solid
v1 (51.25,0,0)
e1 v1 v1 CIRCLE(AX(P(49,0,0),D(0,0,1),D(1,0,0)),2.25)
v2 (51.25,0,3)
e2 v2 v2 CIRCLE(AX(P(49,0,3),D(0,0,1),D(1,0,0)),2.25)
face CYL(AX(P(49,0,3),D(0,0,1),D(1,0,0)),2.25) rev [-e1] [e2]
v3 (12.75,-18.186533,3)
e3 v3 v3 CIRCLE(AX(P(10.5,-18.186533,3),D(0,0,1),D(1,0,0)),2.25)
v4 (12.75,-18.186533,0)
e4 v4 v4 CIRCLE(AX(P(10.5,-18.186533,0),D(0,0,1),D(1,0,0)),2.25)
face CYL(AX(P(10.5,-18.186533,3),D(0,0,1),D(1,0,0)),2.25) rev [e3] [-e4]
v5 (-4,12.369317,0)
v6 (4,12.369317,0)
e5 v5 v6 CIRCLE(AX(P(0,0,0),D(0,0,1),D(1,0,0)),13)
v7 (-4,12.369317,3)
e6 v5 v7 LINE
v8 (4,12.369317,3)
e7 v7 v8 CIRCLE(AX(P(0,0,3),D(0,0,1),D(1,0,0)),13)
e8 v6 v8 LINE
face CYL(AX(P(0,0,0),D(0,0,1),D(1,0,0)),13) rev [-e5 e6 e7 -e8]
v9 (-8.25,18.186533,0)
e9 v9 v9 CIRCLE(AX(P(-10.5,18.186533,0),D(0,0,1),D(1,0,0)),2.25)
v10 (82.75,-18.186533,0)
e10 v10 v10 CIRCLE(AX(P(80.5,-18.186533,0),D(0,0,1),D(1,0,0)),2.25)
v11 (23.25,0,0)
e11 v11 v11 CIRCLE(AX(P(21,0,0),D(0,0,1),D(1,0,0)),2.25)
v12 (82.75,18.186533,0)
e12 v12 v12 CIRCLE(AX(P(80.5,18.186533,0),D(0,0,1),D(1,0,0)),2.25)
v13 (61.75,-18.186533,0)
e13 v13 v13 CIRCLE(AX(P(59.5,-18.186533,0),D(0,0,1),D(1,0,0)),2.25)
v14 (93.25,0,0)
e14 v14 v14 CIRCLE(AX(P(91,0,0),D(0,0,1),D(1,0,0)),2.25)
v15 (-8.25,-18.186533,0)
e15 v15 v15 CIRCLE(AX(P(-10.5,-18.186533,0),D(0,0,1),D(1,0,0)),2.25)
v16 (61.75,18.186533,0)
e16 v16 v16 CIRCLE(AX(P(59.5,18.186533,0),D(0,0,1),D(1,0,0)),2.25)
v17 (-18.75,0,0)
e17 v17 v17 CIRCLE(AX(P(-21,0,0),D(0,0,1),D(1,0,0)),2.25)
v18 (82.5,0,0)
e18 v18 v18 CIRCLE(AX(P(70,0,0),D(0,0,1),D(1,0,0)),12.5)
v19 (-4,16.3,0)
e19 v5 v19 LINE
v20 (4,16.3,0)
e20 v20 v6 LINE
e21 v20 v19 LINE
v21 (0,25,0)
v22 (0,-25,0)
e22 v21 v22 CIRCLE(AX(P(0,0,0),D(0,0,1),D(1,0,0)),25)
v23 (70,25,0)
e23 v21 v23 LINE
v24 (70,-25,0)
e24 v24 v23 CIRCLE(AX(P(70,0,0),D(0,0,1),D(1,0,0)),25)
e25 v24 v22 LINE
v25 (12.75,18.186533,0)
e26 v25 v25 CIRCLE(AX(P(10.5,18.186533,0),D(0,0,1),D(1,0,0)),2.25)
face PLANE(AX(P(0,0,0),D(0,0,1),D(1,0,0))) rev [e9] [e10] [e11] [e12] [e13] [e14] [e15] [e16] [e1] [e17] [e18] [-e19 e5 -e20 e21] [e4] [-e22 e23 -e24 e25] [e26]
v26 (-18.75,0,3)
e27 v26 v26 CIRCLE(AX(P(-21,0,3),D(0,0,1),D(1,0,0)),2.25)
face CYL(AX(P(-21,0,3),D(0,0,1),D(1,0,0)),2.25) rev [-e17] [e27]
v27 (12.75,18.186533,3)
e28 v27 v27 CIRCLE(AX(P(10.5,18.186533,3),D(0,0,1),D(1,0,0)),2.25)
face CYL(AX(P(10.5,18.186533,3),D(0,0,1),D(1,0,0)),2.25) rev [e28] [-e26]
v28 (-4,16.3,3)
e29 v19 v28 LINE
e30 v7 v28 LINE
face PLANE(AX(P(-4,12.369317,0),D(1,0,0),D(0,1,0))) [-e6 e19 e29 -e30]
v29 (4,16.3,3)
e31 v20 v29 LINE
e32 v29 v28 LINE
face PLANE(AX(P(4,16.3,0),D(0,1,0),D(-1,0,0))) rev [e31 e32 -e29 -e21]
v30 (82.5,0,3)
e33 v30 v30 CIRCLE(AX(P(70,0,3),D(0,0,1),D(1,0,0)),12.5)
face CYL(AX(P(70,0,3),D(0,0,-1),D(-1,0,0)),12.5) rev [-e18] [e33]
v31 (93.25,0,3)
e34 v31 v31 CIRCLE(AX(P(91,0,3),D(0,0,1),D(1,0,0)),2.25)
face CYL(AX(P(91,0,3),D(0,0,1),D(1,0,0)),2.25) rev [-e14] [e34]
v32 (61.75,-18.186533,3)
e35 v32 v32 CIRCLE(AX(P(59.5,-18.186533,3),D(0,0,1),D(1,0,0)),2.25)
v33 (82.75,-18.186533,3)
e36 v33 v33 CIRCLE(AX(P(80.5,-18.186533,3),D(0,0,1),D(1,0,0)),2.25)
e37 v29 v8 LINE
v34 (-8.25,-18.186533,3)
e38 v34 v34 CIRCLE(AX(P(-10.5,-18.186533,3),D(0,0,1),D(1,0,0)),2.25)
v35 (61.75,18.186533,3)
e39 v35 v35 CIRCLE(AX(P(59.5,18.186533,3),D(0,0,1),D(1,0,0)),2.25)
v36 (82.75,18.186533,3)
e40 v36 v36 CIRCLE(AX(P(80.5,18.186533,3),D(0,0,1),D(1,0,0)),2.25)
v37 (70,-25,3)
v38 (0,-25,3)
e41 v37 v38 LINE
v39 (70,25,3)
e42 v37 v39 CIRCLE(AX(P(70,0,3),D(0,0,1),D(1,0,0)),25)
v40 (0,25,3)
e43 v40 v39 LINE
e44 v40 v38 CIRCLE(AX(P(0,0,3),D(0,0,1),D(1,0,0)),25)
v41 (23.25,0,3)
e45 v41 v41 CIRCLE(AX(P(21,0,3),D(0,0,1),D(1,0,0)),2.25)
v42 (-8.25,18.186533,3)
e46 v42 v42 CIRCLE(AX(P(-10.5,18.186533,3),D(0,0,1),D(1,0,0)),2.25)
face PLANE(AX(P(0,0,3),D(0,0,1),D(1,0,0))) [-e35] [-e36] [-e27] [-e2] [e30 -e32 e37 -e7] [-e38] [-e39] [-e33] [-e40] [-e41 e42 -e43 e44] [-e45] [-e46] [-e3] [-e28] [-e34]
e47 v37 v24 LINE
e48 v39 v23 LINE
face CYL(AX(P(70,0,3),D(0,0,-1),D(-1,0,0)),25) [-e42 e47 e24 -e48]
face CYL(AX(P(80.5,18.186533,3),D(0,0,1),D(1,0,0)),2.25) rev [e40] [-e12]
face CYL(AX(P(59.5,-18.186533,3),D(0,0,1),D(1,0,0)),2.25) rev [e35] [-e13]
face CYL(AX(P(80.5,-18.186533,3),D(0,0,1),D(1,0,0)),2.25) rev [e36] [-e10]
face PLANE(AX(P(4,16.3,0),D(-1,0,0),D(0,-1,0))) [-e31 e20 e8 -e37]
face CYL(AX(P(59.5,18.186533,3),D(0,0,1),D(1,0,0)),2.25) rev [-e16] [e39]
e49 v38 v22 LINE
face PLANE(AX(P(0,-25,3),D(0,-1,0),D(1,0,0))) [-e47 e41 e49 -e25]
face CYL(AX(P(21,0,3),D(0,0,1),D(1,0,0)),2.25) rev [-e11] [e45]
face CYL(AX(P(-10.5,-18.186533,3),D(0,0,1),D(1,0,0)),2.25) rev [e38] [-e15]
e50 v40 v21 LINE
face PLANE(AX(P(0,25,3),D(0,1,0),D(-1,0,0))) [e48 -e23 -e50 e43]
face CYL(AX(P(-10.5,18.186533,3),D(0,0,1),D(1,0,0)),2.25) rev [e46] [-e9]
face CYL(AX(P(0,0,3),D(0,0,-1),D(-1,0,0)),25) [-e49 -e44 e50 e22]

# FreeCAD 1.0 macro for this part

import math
import FreeCAD as App
import Part
import Sketcher
from FreeCAD import Vector

doc = App.newDocument("Part")
body = doc.addObject("PartDesign::Body", "Body")

# Sketch on XY plane
sketch1 = doc.addObject("Sketcher::SketchObject", "Sketch")
body.addObject(sketch1)
sketch1.AttachmentSupport = (doc.XY_Plane, [""])
sketch1.MapMode = "FlatFace"
sketch1.addGeometry(Part.LineSegment(Vector(70, 25, 0), Vector(0, 25, 0)), False)
sketch1.addGeometry(Part.ArcOfCircle(Part.Circle(Vector(0, 0, 0), Vector(0, 0, 1), 25), math.radians(90), math.radians(270)), False)
sketch1.addGeometry(Part.LineSegment(Vector(0, -25, 0), Vector(70, -25, 0)), False)
sketch1.addGeometry(Part.ArcOfCircle(Part.Circle(Vector(70, 0, 0), Vector(0, 0, 1), 25), math.radians(-90), math.radians(90)), False)
sketch1.addGeometry(Part.Circle(Vector(70, 0, 0), Vector(0, 0, 1), 12), False)
sketch1.addConstraint(Sketcher.Constraint("Tangent", 0, 2, 1, 1))
sketch1.addConstraint(Sketcher.Constraint("Tangent", 1, 2, 2, 1))
sketch1.addConstraint(Sketcher.Constraint("Tangent", 2, 2, 3, 1))
sketch1.addConstraint(Sketcher.Constraint("Tangent", 3, 2, 0, 1))
sketch1.addConstraint(Sketcher.Constraint("Horizontal", 0))
sketch1.addConstraint(Sketcher.Constraint("Horizontal", 2))
sketch1.addConstraint(Sketcher.Constraint("Coincident", 1, 3, -1, 1))
sketch1.addConstraint(Sketcher.Constraint("Coincident", 4, 3, 3, 3))
sketch1.addConstraint(Sketcher.Constraint("Diameter", 4, 25.0))
sketch1.addConstraint(Sketcher.Constraint("Radius", 1, 25.0))
sketch1.addConstraint(Sketcher.Constraint("DistanceX", 0, 2, 0, 1, 70.0))
pad1 = doc.addObject("PartDesign::Pad", "Pad")
body.addObject(pad1)
pad1.Profile = sketch1
pad1.Length = 3

# Sketch on XY plane
sketch2 = doc.addObject("Sketcher::SketchObject", "Sketch001")
body.addObject(sketch2)
sketch2.AttachmentSupport = (doc.XY_Plane, [""])
sketch2.MapMode = "FlatFace"
sketch2.AttachmentOffset = App.Placement(Vector(0, 0, 3), App.Rotation())
sketch2.addGeometry(Part.Circle(Vector(-21, 0, 0), Vector(0, 0, 1), 2.2), False)
sketch2.addGeometry(Part.Circle(Vector(91, 0, 0), Vector(0, 0, 1), 2.2), False)
sketch2.addGeometry(Part.Circle(Vector(-10.5, 18.2, 0), Vector(0, 0, 1), 2.2), False)
sketch2.addGeometry(Part.Circle(Vector(10.5, 18.2, 0), Vector(0, 0, 1), 2.2), False)
sketch2.addGeometry(Part.Circle(Vector(21, 0, 0), Vector(0, 0, 1), 2.2), False)
sketch2.addGeometry(Part.Circle(Vector(10.5, -18.2, 0), Vector(0, 0, 1), 2.2), False)
sketch2.addGeometry(Part.Circle(Vector(-10.5, -18.2, 0), Vector(0, 0, 1), 2.2), False)
sketch2.addGeometry(Part.Circle(Vector(80.5, -18.2, 0), Vector(0, 0, 1), 2.2), False)
sketch2.addGeometry(Part.Circle(Vector(59.5, -18.2, 0), Vector(0, 0, 1), 2.2), False)
sketch2.addGeometry(Part.Circle(Vector(49, 0, 0), Vector(0, 0, 1), 2.2), False)
sketch2.addGeometry(Part.Circle(Vector(59.5, 18.2, 0), Vector(0, 0, 1), 2.2), False)
sketch2.addGeometry(Part.Circle(Vector(80.5, 18.2, 0), Vector(0, 0, 1), 2.2), False)
sketch2.addConstraint(Sketcher.Constraint("Equal", 0, 1))
sketch2.addConstraint(Sketcher.Constraint("Equal", 1, 2))
sketch2.addConstraint(Sketcher.Constraint("Equal", 2, 3))
sketch2.addConstraint(Sketcher.Constraint("Equal", 3, 4))
sketch2.addConstraint(Sketcher.Constraint("Equal", 4, 5))
sketch2.addConstraint(Sketcher.Constraint("Equal", 5, 6))
sketch2.addConstraint(Sketcher.Constraint("Equal", 6, 7))
sketch2.addConstraint(Sketcher.Constraint("Equal", 7, 8))
sketch2.addConstraint(Sketcher.Constraint("Equal", 8, 9))
sketch2.addConstraint(Sketcher.Constraint("Equal", 9, 10))
sketch2.addConstraint(Sketcher.Constraint("Equal", 10, 11))
sketch2.addConstraint(Sketcher.Constraint("Symmetric", 0, 3, 4, 3, -1, 1))
sketch2.addConstraint(Sketcher.Constraint("Symmetric", 2, 3, 5, 3, -1, 1))
sketch2.addConstraint(Sketcher.Constraint("Symmetric", 3, 3, 6, 3, -1, 1))
sketch2.addConstraint(Sketcher.Constraint("Symmetric", 2, 3, 3, 3, -2))
sketch2.addConstraint(Sketcher.Constraint("Symmetric", 8, 3, 10, 3, -1))
sketch2.addConstraint(Sketcher.Constraint("Symmetric", 7, 3, 11, 3, -1))
sketch2.addConstraint(Sketcher.Constraint("PointOnObject", 0, 3, -1))
sketch2.addConstraint(Sketcher.Constraint("PointOnObject", 1, 3, -1))
sketch2.addConstraint(Sketcher.Constraint("PointOnObject", 9, 3, -1))
sketch2.addConstraint(Sketcher.Constraint("Horizontal", 6, 3, 7, 3))
sketch2.addConstraint(Sketcher.Constraint("Horizontal", 7, 3, 8, 3))
sketch2.addConstraint(Sketcher.Constraint("Diameter", 0, 4.5))
sketch2.addConstraint(Sketcher.Constraint("DistanceX", 0, 3, -1, 1, 21.0))
sketch2.addConstraint(Sketcher.Constraint("DistanceX", -1, 1, 1, 3, 91.0))
sketch2.addConstraint(Sketcher.Constraint("DistanceX", -1, 1, 9, 3, 49.0))
sketch2.addConstraint(Sketcher.Constraint("DistanceX", 2, 3, 3, 3, 21.0))
sketch2.addConstraint(Sketcher.Constraint("DistanceX", 5, 3, 7, 3, 70.0))
sketch2.addConstraint(Sketcher.Constraint("DistanceX", 8, 3, 7, 3, 21.0))
sketch2.addConstraint(Sketcher.Constraint("DistanceY", -1, 1, 2, 3, 18.186533))
doc.recompute()
hole = doc.addObject("PartDesign::Hole", "Hole")
body.addObject(hole)
hole.Profile = sketch2
hole.ThreadType = "None"
hole.Diameter = 4.5
hole.DepthType = "ThroughAll"

# Sketch on XY plane
sketch3 = doc.addObject("Sketcher::SketchObject", "Sketch002")
body.addObject(sketch3)
sketch3.AttachmentSupport = (doc.XY_Plane, [""])
sketch3.MapMode = "FlatFace"
sketch3.AttachmentOffset = App.Placement(Vector(0, 0, 3), App.Rotation())
sketch3.addGeometry(Part.LineSegment(Vector(-4, 16.3, 0), Vector(-4, 12.4, 0)), False)
sketch3.addGeometry(Part.ArcOfCircle(Part.Circle(Vector(0, 0, 0), Vector(0, 0, 1), 13), math.radians(108), math.radians(432)), False)
sketch3.addGeometry(Part.LineSegment(Vector(4, 12.4, 0), Vector(4, 16.3, 0)), False)
sketch3.addGeometry(Part.LineSegment(Vector(4, 16.3, 0), Vector(-4, 16.3, 0)), False)
sketch3.addConstraint(Sketcher.Constraint("Coincident", 0, 2, 1, 1))
sketch3.addConstraint(Sketcher.Constraint("Coincident", 1, 2, 2, 1))
sketch3.addConstraint(Sketcher.Constraint("Coincident", 2, 2, 3, 1))
sketch3.addConstraint(Sketcher.Constraint("Coincident", 3, 2, 0, 1))
sketch3.addConstraint(Sketcher.Constraint("Vertical", 0))
sketch3.addConstraint(Sketcher.Constraint("Vertical", 2))
sketch3.addConstraint(Sketcher.Constraint("Horizontal", 3))
sketch3.addConstraint(Sketcher.Constraint("Coincident", 1, 3, -1, 1))
sketch3.addConstraint(Sketcher.Constraint("Horizontal", 0, 2, 1, 2))
sketch3.addConstraint(Sketcher.Constraint("Radius", 1, 13.0))
sketch3.addConstraint(Sketcher.Constraint("DistanceX", 3, 2, 3, 1, 8.0))
sketch3.addConstraint(Sketcher.Constraint("DistanceY", -1, 1, 2, 2, 16.3))
pocket1 = doc.addObject("PartDesign::Pocket", "Pocket")
body.addObject(pocket1)
pocket1.Profile = sketch3
pocket1.Type = "ThroughAll"

doc.recompute()
